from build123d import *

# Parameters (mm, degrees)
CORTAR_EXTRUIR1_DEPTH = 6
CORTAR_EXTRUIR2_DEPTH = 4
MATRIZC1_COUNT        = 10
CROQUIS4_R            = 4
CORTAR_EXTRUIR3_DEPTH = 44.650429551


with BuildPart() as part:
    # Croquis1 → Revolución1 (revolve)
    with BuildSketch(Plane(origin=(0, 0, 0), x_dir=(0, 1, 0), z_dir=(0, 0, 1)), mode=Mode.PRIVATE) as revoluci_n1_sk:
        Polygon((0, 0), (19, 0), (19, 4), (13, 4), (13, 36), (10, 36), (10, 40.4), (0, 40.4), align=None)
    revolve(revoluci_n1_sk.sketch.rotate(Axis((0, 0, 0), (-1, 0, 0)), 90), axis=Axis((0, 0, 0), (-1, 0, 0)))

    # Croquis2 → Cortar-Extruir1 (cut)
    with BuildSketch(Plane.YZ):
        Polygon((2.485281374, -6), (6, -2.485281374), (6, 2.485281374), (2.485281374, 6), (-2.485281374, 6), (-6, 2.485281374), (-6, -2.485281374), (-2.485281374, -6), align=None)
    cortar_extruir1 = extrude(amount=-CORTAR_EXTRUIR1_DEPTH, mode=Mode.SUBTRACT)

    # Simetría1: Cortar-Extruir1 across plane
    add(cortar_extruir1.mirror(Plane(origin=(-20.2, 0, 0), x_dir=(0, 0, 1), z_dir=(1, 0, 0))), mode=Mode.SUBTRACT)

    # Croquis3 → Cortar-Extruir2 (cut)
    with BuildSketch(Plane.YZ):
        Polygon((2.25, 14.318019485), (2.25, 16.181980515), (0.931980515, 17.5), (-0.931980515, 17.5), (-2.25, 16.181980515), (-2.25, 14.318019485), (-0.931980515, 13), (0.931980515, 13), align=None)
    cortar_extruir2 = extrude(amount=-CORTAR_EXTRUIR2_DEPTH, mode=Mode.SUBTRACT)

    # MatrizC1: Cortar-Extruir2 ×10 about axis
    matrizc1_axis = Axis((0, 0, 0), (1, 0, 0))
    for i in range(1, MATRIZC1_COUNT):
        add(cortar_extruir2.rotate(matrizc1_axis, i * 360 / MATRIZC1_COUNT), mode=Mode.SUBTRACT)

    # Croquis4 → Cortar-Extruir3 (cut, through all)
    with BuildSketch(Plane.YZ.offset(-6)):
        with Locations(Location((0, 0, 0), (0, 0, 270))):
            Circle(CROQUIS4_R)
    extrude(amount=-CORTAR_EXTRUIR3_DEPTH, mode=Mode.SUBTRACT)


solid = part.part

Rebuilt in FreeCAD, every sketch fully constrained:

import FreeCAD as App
import Part
import Sketcher

V = App.Vector


def add_polygon(sketch, points):
    """Adds a closed chain of lines whose ends are joined by coincident constraints."""
    first, n = sketch.GeometryCount, len(points)
    for a, b in zip(points, points[1:] + points[:1]):
        sketch.addGeometry(Part.LineSegment(App.Vector(*a, 0), App.Vector(*b, 0)), False)
    for i in range(n):
        sketch.addConstraint(Sketcher.Constraint("Coincident", first + i, 2, first + (i + 1) % n, 1))

doc = App.newDocument("Part")
params = doc.addObject("Spreadsheet::Sheet", "Params")
for row, (alias, value) in enumerate([
    ("sketch1_width", "4 mm"),
    ("sketch1_width2", "32 mm"),
    ("sketch1_height", "19 mm"),
    ("sketch1_height2", "6 mm"),
    ("sketch1_height3", "3 mm"),
    ("revolution_angle", "360 deg"),
    ("pocket1_length", "6 mm"),
    ("pocket2_length", "4 mm"),
    ("sketch4_diameter", "8 mm"),
], start=1):
    params.set(f"A{row}", alias)
    params.set(f"B{row}", "=" + value)
    params.setAlias(f"B{row}", alias)

body = doc.addObject("PartDesign::Body", "Body")

# Sketch on XY plane
sketch1 = body.newObject("Sketcher::SketchObject", "Sketch")
sketch1.AttachmentSupport = (doc.getObject("XY_Plane"), [""])
sketch1.MapMode = "FlatFace"
add_polygon(sketch1, [(0, 0), (0, 19), (-4, 19), (-4, 13), (-36, 13), (-36, 10), (-40.4, 10), (-40.4, 0)])  # lines 0-7
sketch1.addConstraint(Sketcher.Constraint("Vertical", 0))
sketch1.addConstraint(Sketcher.Constraint("Horizontal", 1))
sketch1.addConstraint(Sketcher.Constraint("Vertical", 2))
sketch1.addConstraint(Sketcher.Constraint("Horizontal", 3))
sketch1.addConstraint(Sketcher.Constraint("Vertical", 4))
sketch1.addConstraint(Sketcher.Constraint("Horizontal", 5))
sketch1.addConstraint(Sketcher.Constraint("Vertical", 6))
sketch1.addConstraint(Sketcher.Constraint("Horizontal", 7))
sketch1.addConstraint(Sketcher.Constraint("Coincident", 7, 2, -1, 1))
sketch1.addConstraint(Sketcher.Constraint("DistanceX", 1, 2, 1, 1, 4.0))
sketch1.addConstraint(Sketcher.Constraint("DistanceX", 3, 2, 3, 1, 32.0))
sketch1.addConstraint(Sketcher.Constraint("DistanceY", 0, 1, 0, 2, 19.0))
sketch1.addConstraint(Sketcher.Constraint("DistanceY", 2, 2, 2, 1, 6.0))
sketch1.addConstraint(Sketcher.Constraint("DistanceY", 4, 2, 4, 1, 3.0))
sketch1.addConstraint(Sketcher.Constraint("DistanceX", 5, 2, 5, 1, 4.4))
sketch1.setExpression("Constraints[17]", "Params.sketch1_width")
sketch1.setExpression("Constraints[18]", "Params.sketch1_width2")
sketch1.setExpression("Constraints[19]", "Params.sketch1_height")
sketch1.setExpression("Constraints[20]", "Params.sketch1_height2")
sketch1.setExpression("Constraints[21]", "Params.sketch1_height3")
revolution = body.newObject("PartDesign::Revolution", "Revolution")
revolution.Profile = sketch1
revolution.ReferenceAxis = (sketch1, ["H_Axis"])
revolution.setExpression("Angle", "Params.revolution_angle")

# Sketch on YZ plane
sketch2 = body.newObject("Sketcher::SketchObject", "Sketch001")
sketch2.AttachmentSupport = (doc.getObject("YZ_Plane"), [""])
sketch2.MapMode = "FlatFace"
add_polygon(sketch2, [(2.5, -6), (6, -2.5), (6, 2.5), (2.5, 6), (-2.5, 6), (-6, 2.5), (-6, -2.5), (-2.5, -6)])  # lines 0-7
sketch2.addConstraint(Sketcher.Constraint("Vertical", 1))
sketch2.addConstraint(Sketcher.Constraint("Horizontal", 3))
sketch2.addConstraint(Sketcher.Constraint("Vertical", 5))
sketch2.addConstraint(Sketcher.Constraint("Horizontal", 7))
sketch2.addConstraint(Sketcher.Constraint("Symmetric", 0, 2, 4, 2, -1, 1))
sketch2.addConstraint(Sketcher.Constraint("Symmetric", 2, 2, 6, 2, -1, 1))
sketch2.addConstraint(Sketcher.Constraint("Perpendicular", 0, 2))
sketch2.addConstraint(Sketcher.Constraint("Perpendicular", 2, 4))
sketch2.addConstraint(Sketcher.Constraint("Perpendicular", 4, 6))
sketch2.addConstraint(Sketcher.Constraint("Horizontal", 1, 2, 4, 2))
sketch2.addConstraint(Sketcher.Constraint("Vertical", 3, 2, 6, 2))
sketch2.addConstraint(Sketcher.Constraint("Equal", 7, 1))
sketch2.addConstraint(Sketcher.Constraint("DistanceX", -1, 1, 0, 2, 6.0))
sketch2.addConstraint(Sketcher.Constraint("DistanceX", 3, 2, 3, 1, 4.970563))
pocket1 = body.newObject("PartDesign::Pocket", "Pocket")
pocket1.Profile = sketch2
pocket1.setExpression("Length", "Params.pocket1_length")
doc.recompute()

datumplane = body.newObject("PartDesign::Plane", "DatumPlane")
datumplane.AttachmentSupport = (doc.getObject("YZ_Plane"), [""])
datumplane.MapMode = "FlatFace"
datumplane.AttachmentOffset = App.Placement(V(0, 0, -20.2), App.Rotation())
mirrored = body.newObject("PartDesign::Mirrored", "Mirrored")
mirrored.Originals = [pocket1]
mirrored.MirrorPlane = (datumplane, [""])
body.Tip = mirrored

# Sketch on YZ plane
sketch3 = body.newObject("Sketcher::SketchObject", "Sketch002")
sketch3.AttachmentSupport = (doc.getObject("YZ_Plane"), [""])
sketch3.MapMode = "FlatFace"
add_polygon(sketch3, [(2.2, 14.3), (2.2, 16.2), (0.9, 17.5), (-0.9, 17.5), (-2.2, 16.2), (-2.2, 14.3), (-0.9, 13), (0.9, 13)])  # lines 0-7
sketch3.addConstraint(Sketcher.Constraint("Vertical", 0))
sketch3.addConstraint(Sketcher.Constraint("Horizontal", 2))
sketch3.addConstraint(Sketcher.Constraint("Vertical", 4))
sketch3.addConstraint(Sketcher.Constraint("Horizontal", 6))
sketch3.addConstraint(Sketcher.Constraint("Symmetric", 0, 2, 3, 2, -2))
sketch3.addConstraint(Sketcher.Constraint("Perpendicular", 1, 3))
sketch3.addConstraint(Sketcher.Constraint("Perpendicular", 3, 5))
sketch3.addConstraint(Sketcher.Constraint("Perpendicular", 5, 7))
sketch3.addConstraint(Sketcher.Constraint("Horizontal", 4, 2, 7, 2))
sketch3.addConstraint(Sketcher.Constraint("Vertical", 2, 2, 5, 2))
sketch3.addConstraint(Sketcher.Constraint("Vertical", 1, 2, 6, 2))
sketch3.addConstraint(Sketcher.Constraint("Equal", 6, 0))
sketch3.addConstraint(Sketcher.Constraint("DistanceY", -1, 1, 5, 2, 13.0))
sketch3.addConstraint(Sketcher.Constraint("DistanceY", -1, 1, 1, 2, 17.5))
sketch3.addConstraint(Sketcher.Constraint("DistanceX", 2, 2, 2, 1, 1.863961))
pocket2 = body.newObject("PartDesign::Pocket", "Pocket001")
pocket2.Profile = sketch3
pocket2.setExpression("Length", "Params.pocket2_length")
doc.recompute()

polarpattern = body.newObject("PartDesign::PolarPattern", "PolarPattern")
polarpattern.Originals = [pocket2]
polarpattern.Axis = (doc.getObject("X_Axis"), [""])
polarpattern.Angle = 360
polarpattern.Occurrences = 10
body.Tip = polarpattern

# Sketch on YZ plane
sketch4 = body.newObject("Sketcher::SketchObject", "Sketch003")
sketch4.AttachmentSupport = (doc.getObject("YZ_Plane"), [""])
sketch4.MapMode = "FlatFace"
sketch4.AttachmentOffset = App.Placement(V(0, 0, -6), App.Rotation())
sketch4.addGeometry(Part.Circle(V(0, 0, 0), V(0, 0, 1), 4), False)
sketch4.addConstraint(Sketcher.Constraint("Coincident", 0, 3, -1, 1))
sketch4.addConstraint(Sketcher.Constraint("Diameter", 0, 8.0))
sketch4.setExpression("Constraints[1]", "Params.sketch4_diameter")
pocket3 = body.newObject("PartDesign::Pocket", "Pocket002")
pocket3.Profile = sketch4
pocket3.Type = "ThroughAll"

doc.recompute()
